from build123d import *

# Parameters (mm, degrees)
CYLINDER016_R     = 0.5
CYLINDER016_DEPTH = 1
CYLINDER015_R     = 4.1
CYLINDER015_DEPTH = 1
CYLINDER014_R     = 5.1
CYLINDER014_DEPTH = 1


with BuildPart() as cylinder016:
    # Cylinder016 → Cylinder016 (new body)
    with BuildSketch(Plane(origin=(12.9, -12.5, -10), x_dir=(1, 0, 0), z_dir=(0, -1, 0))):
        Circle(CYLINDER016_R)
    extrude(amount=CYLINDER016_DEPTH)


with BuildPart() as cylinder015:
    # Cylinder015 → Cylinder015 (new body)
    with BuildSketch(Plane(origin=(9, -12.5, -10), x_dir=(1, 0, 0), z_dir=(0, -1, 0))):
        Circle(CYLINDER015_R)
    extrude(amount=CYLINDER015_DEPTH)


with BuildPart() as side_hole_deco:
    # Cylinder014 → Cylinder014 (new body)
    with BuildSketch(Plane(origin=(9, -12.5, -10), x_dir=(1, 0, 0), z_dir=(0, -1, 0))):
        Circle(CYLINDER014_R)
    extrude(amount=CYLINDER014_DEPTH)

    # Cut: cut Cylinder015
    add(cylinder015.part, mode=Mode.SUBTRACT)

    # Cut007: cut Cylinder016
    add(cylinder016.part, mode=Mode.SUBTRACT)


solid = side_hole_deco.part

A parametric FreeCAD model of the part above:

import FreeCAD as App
import Part
import Sketcher

doc = App.newDocument("Part")
params = doc.addObject("Spreadsheet::Sheet", "Params")
for row, (alias, value) in enumerate([
    ("sketch1_diameter", "1 mm"),
    ("pad1_length", "1 mm"),
    ("sketch2_diameter", "8.2 mm"),
    ("pad2_length", "1 mm"),
    ("sketch3_diameter", "10.2 mm"),
    ("pad3_length", "1 mm"),
], start=1):
    params.set(f"A{row}", alias)
    params.set(f"B{row}", "=" + value)
    params.setAlias(f"B{row}", alias)

body = doc.addObject("PartDesign::Body", "Body")

# Sketch on XZ plane
sketch1 = doc.addObject("Sketcher::SketchObject", "Sketch")
body.addObject(sketch1)
sketch1.AttachmentSupport = (doc.XZ_Plane, [""])
sketch1.MapMode = "FlatFace"
sketch1.AttachmentOffset = App.Placement(App.Vector(0, 0, 12.5), App.Rotation())
sketch1.addGeometry(Part.Circle(App.Vector(12.9, -10, 0), App.Vector(0, 0, 1), 0.5), False)
sketch1.addConstraint(Sketcher.Constraint("Diameter", 0, 1.0))
sketch1.addConstraint(Sketcher.Constraint("DistanceY", 0, 3, -1, 1, 10.0))
sketch1.addConstraint(Sketcher.Constraint("DistanceX", -1, 1, 0, 3, 12.9))
sketch1.setExpression("Constraints[0]", "Params.sketch1_diameter")
pad1 = doc.addObject("PartDesign::Pad", "Pad")
body.addObject(pad1)
pad1.Profile = sketch1
pad1.setExpression("Length", "Params.pad1_length")
body2 = doc.addObject("PartDesign::Body", "Body001")

# Sketch on XZ plane
sketch2 = doc.addObject("Sketcher::SketchObject", "Sketch001")
body2.addObject(sketch2)
sketch2.AttachmentSupport = (doc.getObject("XZ_Plane001"), [""])
sketch2.MapMode = "FlatFace"
sketch2.AttachmentOffset = App.Placement(App.Vector(0, 0, 12.5), App.Rotation())
sketch2.addGeometry(Part.Circle(App.Vector(9, -10, 0), App.Vector(0, 0, 1), 4.1), False)
sketch2.addConstraint(Sketcher.Constraint("Diameter", 0, 8.2))
sketch2.addConstraint(Sketcher.Constraint("DistanceX", -1, 1, 0, 3, 9.0))
sketch2.addConstraint(Sketcher.Constraint("DistanceY", 0, 3, -1, 1, 10.0))
sketch2.setExpression("Constraints[0]", "Params.sketch2_diameter")
pad2 = doc.addObject("PartDesign::Pad", "Pad001")
body2.addObject(pad2)
pad2.Profile = sketch2
pad2.setExpression("Length", "Params.pad2_length")
body3 = doc.addObject("PartDesign::Body", "Body002")

# Sketch on XZ plane
sketch3 = doc.addObject("Sketcher::SketchObject", "Sketch002")
body3.addObject(sketch3)
sketch3.AttachmentSupport = (doc.getObject("XZ_Plane002"), [""])
sketch3.MapMode = "FlatFace"
sketch3.AttachmentOffset = App.Placement(App.Vector(0, 0, 12.5), App.Rotation())
sketch3.addGeometry(Part.Circle(App.Vector(9, -10, 0), App.Vector(0, 0, 1), 5), False)
sketch3.addConstraint(Sketcher.Constraint("Diameter", 0, 10.2))
sketch3.addConstraint(Sketcher.Constraint("DistanceX", -1, 1, 0, 3, 9.0))
sketch3.addConstraint(Sketcher.Constraint("DistanceY", 0, 3, -1, 1, 10.0))
sketch3.setExpression("Constraints[0]", "Params.sketch3_diameter")
pad3 = doc.addObject("PartDesign::Pad", "Pad002")
body3.addObject(pad3)
pad3.Profile = sketch3
pad3.setExpression("Length", "Params.pad3_length")
doc.recompute()

boolean = doc.addObject("PartDesign::Boolean", "Boolean")
body3.addObject(boolean)
boolean.Type = "Cut"
boolean.addObjects([body2])
doc.recompute()

boolean2 = doc.addObject("PartDesign::Boolean", "Boolean001")
body3.addObject(boolean2)
boolean2.Type = "Cut"
boolean2.addObjects([body])

doc.recompute()
